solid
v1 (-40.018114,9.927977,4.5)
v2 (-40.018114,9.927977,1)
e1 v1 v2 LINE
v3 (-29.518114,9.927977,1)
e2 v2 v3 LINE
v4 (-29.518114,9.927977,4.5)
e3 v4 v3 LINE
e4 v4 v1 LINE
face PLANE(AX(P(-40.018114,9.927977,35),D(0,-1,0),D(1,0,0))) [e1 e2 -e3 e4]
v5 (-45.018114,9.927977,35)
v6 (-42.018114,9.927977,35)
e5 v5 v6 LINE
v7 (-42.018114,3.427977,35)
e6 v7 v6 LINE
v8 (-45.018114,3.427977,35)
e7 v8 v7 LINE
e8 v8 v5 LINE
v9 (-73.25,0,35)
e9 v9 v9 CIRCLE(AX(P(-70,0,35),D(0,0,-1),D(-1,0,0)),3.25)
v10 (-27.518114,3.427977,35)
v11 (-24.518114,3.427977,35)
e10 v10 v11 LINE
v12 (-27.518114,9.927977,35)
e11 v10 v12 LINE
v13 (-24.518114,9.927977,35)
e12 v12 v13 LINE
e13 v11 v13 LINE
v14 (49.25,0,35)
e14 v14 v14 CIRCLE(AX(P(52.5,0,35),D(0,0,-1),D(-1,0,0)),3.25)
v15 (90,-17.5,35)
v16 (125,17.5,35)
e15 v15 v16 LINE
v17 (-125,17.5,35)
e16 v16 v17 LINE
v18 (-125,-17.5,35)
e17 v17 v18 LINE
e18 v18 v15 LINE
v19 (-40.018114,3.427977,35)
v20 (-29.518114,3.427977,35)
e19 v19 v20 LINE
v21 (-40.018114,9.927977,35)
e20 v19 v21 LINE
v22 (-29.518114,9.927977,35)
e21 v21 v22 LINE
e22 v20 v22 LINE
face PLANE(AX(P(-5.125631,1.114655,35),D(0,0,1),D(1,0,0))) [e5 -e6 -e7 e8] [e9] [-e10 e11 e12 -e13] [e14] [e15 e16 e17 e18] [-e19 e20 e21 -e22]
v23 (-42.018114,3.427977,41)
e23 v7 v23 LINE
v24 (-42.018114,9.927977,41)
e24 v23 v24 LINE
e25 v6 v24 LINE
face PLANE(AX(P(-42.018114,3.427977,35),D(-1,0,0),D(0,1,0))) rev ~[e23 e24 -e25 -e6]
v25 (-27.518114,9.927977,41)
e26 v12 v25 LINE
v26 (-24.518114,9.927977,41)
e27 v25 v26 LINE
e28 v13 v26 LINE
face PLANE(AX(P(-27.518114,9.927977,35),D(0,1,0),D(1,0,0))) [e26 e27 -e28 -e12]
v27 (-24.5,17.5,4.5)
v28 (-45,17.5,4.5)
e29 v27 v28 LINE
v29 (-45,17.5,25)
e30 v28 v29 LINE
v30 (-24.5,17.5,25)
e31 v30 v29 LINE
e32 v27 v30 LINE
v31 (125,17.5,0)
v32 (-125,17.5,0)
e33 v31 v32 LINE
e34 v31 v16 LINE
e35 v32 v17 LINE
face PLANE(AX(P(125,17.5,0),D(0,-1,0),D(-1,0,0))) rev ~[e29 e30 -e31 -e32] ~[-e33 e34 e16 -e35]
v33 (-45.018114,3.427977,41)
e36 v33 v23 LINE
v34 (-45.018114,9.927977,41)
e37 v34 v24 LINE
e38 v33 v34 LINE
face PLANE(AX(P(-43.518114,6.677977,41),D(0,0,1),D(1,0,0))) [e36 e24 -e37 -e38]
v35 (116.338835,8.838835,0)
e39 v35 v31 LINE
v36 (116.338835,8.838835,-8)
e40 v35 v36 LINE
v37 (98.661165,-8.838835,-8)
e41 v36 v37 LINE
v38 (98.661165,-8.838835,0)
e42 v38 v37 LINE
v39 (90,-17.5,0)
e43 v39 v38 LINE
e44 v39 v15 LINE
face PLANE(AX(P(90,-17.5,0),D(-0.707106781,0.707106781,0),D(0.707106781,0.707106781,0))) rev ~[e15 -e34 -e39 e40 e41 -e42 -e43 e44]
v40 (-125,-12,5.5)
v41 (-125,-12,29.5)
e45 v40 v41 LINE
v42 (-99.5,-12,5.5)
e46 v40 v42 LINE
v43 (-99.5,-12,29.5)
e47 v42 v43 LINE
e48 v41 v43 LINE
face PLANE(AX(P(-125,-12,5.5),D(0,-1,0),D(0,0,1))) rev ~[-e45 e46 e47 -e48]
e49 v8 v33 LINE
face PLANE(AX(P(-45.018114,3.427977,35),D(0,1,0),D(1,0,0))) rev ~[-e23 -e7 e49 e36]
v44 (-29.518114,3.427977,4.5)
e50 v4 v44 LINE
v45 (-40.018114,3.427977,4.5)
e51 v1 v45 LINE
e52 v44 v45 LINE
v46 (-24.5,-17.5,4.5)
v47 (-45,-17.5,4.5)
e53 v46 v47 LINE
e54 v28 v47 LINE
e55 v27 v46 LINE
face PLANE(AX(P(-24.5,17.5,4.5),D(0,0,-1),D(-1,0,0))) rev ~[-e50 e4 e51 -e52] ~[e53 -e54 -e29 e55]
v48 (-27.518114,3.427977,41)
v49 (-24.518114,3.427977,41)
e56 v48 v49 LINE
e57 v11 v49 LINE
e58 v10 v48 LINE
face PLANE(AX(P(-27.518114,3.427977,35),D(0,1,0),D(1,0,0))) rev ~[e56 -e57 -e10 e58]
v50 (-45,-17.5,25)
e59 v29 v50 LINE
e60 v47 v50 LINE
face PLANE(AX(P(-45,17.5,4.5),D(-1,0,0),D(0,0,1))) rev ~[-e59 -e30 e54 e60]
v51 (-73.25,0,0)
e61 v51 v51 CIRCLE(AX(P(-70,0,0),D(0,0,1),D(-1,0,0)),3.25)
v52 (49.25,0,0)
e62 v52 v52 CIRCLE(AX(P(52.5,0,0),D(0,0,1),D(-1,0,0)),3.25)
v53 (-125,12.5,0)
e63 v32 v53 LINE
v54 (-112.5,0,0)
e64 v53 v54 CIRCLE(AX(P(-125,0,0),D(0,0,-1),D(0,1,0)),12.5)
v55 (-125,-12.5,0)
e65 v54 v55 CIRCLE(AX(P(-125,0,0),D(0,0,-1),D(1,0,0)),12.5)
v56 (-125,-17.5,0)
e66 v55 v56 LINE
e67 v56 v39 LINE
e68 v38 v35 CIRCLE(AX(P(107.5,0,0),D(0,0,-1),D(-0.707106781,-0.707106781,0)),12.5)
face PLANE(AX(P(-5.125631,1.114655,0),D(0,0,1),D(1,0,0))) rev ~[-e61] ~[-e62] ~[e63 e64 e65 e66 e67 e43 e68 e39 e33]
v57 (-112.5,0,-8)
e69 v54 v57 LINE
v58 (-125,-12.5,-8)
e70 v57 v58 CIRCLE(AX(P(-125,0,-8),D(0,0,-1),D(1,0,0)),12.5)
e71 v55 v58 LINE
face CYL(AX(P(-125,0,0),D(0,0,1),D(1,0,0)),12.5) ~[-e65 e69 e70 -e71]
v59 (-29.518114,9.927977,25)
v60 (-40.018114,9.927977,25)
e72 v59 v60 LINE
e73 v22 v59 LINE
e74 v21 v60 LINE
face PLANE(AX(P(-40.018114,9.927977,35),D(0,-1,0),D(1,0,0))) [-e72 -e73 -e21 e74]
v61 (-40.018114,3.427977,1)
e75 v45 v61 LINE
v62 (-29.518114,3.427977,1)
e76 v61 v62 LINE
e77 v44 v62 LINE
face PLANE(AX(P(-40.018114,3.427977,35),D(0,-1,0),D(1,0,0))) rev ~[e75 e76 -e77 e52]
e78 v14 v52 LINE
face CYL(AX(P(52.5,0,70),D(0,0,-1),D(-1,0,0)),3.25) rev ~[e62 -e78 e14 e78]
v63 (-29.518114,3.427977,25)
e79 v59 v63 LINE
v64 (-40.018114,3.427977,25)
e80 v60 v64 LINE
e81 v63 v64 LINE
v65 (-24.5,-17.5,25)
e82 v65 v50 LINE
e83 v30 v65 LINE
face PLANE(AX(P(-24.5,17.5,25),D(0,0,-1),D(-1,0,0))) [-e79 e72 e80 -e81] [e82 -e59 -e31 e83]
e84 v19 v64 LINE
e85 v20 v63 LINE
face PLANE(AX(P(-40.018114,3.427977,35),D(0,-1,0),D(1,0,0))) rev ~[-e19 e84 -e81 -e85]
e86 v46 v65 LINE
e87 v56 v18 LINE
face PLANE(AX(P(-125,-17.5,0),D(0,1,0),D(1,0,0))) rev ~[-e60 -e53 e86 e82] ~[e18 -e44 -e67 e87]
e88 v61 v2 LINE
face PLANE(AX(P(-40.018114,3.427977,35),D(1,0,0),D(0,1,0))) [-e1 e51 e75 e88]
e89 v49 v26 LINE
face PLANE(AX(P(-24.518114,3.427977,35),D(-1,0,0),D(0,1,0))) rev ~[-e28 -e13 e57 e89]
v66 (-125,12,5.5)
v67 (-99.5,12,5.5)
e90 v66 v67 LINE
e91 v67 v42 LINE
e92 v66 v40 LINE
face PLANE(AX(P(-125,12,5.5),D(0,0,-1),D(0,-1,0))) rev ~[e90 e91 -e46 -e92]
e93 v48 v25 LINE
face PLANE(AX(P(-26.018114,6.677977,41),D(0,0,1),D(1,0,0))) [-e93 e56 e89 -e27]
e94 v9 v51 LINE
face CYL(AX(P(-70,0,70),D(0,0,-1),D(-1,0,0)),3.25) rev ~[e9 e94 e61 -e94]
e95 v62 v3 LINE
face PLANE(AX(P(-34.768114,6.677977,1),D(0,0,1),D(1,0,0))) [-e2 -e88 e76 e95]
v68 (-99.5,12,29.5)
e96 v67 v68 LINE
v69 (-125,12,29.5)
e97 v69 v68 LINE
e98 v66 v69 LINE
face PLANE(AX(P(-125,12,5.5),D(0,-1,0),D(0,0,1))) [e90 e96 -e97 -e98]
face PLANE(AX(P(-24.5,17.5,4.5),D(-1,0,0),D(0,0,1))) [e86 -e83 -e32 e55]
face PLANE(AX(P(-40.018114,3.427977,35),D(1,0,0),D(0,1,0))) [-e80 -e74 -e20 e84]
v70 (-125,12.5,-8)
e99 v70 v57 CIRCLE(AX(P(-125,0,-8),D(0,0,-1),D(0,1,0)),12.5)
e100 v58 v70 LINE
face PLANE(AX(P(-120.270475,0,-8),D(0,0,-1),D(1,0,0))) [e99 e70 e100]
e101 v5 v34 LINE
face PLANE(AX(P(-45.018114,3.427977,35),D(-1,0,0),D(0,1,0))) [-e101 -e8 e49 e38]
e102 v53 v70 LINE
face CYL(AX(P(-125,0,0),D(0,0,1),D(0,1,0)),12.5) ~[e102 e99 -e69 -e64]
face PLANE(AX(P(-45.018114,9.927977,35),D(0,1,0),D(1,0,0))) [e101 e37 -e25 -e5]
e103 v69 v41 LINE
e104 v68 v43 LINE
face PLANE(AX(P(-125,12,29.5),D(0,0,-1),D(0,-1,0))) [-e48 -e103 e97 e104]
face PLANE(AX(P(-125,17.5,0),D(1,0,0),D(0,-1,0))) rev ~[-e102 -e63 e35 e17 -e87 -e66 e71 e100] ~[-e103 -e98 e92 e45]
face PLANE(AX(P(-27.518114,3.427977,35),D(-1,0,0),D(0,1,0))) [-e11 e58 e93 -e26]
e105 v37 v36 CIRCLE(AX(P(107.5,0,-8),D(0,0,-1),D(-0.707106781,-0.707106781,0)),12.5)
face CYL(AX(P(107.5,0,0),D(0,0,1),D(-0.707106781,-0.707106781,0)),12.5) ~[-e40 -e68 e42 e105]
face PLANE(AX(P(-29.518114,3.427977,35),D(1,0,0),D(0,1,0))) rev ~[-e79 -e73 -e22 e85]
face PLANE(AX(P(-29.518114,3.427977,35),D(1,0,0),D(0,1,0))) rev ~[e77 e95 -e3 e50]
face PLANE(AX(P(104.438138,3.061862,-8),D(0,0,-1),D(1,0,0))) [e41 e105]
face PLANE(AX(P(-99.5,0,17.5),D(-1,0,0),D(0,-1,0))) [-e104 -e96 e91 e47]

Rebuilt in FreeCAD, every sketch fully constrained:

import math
import FreeCAD as App
import Part
import Sketcher

V = App.Vector
Q = App.Units.Quantity

doc = App.newDocument("Part")
body = doc.addObject("PartDesign::Body", "Body")

# Sketch on XY plane
sketch1 = body.newObject("Sketcher::SketchObject", "Sketch")
sketch1.AttachmentSupport = (doc.getObject("XY_Plane"), [""])
sketch1.MapMode = "FlatFace"
sketch1.addGeometry([
    Part.LineSegment(V(90, -18, 0), V(125, 18, 0)),
    Part.LineSegment(V(125, 18, 0), V(-125, 18, 0)),
    Part.LineSegment(V(-125, 18, 0), V(-125, -18, 0)),
    Part.LineSegment(V(-125, -18, 0), V(90, -18, 0)),
], False)
sketch1.addConstraint([
    Sketcher.Constraint("Coincident", 0, 2, 1, 1),
    Sketcher.Constraint("Coincident", 1, 2, 2, 1),
    Sketcher.Constraint("Coincident", 2, 2, 3, 1),
    Sketcher.Constraint("Coincident", 3, 2, 0, 1),
    Sketcher.Constraint("Horizontal", 1),
    Sketcher.Constraint("Vertical", 2),
    Sketcher.Constraint("Horizontal", 3),
    Sketcher.Constraint("Symmetric", 0, 2, 2, 2, -1, 1),
    Sketcher.Constraint("DistanceX", 1, 2, 1, 1, 250.0),
    Sketcher.Constraint("DistanceX", 3, 1, 3, 2, 215.0),
    Sketcher.Constraint("DistanceY", 2, 2, 2, 1, 35.0),
])
pad1 = body.newObject("PartDesign::Pad", "Pad")
pad1.Profile = sketch1
pad1.Length = 35

# Sketch on XY plane
sketch2 = body.newObject("Sketcher::SketchObject", "Sketch001")
sketch2.AttachmentSupport = (doc.getObject("XY_Plane"), [""])
sketch2.MapMode = "FlatFace"
sketch2.AttachmentOffset = App.Placement(V(0, 0, 35), App.Rotation())
sketch2.addGeometry(Part.Circle(V(-70, 0, 0), V(0, 0, 1), 3.2), False)
sketch2.addConstraint([
    Sketcher.Constraint("PointOnObject", 0, 3, -1),
    Sketcher.Constraint("Diameter", 0, 6.5),
    Sketcher.Constraint("DistanceX", 0, 3, -1, 1, 70.0),
])
doc.recompute()
hole = body.newObject("PartDesign::Hole", "Hole")
hole.Profile = sketch2
hole.ThreadType = "None"
hole.Diameter = 6.5
hole.DepthType = "Dimension"
hole.Depth = 35
hole.DrillPoint = "Angled"
hole.DrillPointAngle = 118

# Sketch on XY plane
sketch3 = body.newObject("Sketcher::SketchObject", "Sketch002")
sketch3.AttachmentSupport = (doc.getObject("XY_Plane"), [""])
sketch3.MapMode = "FlatFace"
sketch3.AttachmentOffset = App.Placement(V(0, 0, 35), App.Rotation())
sketch3.addGeometry(Part.Circle(V(52.5, 0, 0), V(0, 0, 1), 3.2), False)
sketch3.addConstraint([
    Sketcher.Constraint("PointOnObject", 0, 3, -1),
    Sketcher.Constraint("Diameter", 0, 6.5),
    Sketcher.Constraint("DistanceX", -1, 1, 0, 3, 52.5),
])
doc.recompute()
hole2 = body.newObject("PartDesign::Hole", "Hole001")
hole2.Profile = sketch3
hole2.ThreadType = "None"
hole2.Diameter = 6.5
hole2.DepthType = "Dimension"
hole2.Depth = 35
hole2.DrillPoint = "Angled"
hole2.DrillPointAngle = 118

# Sketch on YZ plane
sketch4 = body.newObject("Sketcher::SketchObject", "Sketch003")
sketch4.AttachmentSupport = (doc.getObject("YZ_Plane"), [""])
sketch4.MapMode = "FlatFace"
sketch4.AttachmentOffset = App.Placement(V(0, 0, -125), App.Rotation())
sketch4.addGeometry([
    Part.LineSegment(V(12, 30, 0), V(12, 6, 0)),
    Part.LineSegment(V(12, 6, 0), V(-12, 6, 0)),
    Part.LineSegment(V(-12, 6, 0), V(-12, 30, 0)),
    Part.LineSegment(V(-12, 30, 0), V(12, 30, 0)),
], False)
sketch4.addConstraint([
    Sketcher.Constraint("Coincident", 0, 2, 1, 1),
    Sketcher.Constraint("Coincident", 1, 2, 2, 1),
    Sketcher.Constraint("Coincident", 2, 2, 3, 1),
    Sketcher.Constraint("Coincident", 3, 2, 0, 1),
    Sketcher.Constraint("Vertical", 0),
    Sketcher.Constraint("Horizontal", 1),
    Sketcher.Constraint("Vertical", 2),
    Sketcher.Constraint("Horizontal", 3),
    Sketcher.Constraint("Equal", 3, 0),
    Sketcher.Constraint("DistanceX", 1, 2, 1, 1, 24.0),
    Sketcher.Constraint("DistanceX", -1, 1, 0, 2, 12.0),
    Sketcher.Constraint("DistanceY", -1, 1, 0, 2, 5.5),
])
pocket1 = body.newObject("PartDesign::Pocket", "Pocket")
pocket1.Profile = sketch4
pocket1.Length = 25.5
pocket1.Reversed = True

# Sketch on XY plane
sketch5 = body.newObject("Sketcher::SketchObject", "Sketch004")
sketch5.AttachmentSupport = (doc.getObject("XY_Plane"), [""])
sketch5.MapMode = "FlatFace"
sketch5.addGeometry([
    Part.LineSegment(V(116, 9, 0), V(99, -9, 0)),
    Part.ArcOfCircle(Part.Circle(V(108, 0, 0), V(0, 0, 1), 12), math.radians(45), math.radians(225)),
], False)
sketch5.addConstraint([
    Sketcher.Constraint("Coincident", 0, 1, 1, 1),
    Sketcher.Constraint("Coincident", 1, 2, 0, 2),
    Sketcher.Constraint("PointOnObject", 1, 3, -1),
    Sketcher.Constraint("Radius", 1, 12.5),
    Sketcher.Constraint("Angle", 0, Q("-135 deg")),
    Sketcher.Constraint("DistanceX", -1, 1, 1, 3, 107.5),
    Sketcher.Constraint("DistanceX", -1, 1, 0, 1, 116.338835),
])
pad2 = body.newObject("PartDesign::Pad", "Pad001")
pad2.Profile = sketch5
pad2.Length = 8
pad2.Reversed = True

# Sketch on XY plane
sketch6 = body.newObject("Sketcher::SketchObject", "Sketch005")
sketch6.AttachmentSupport = (doc.getObject("XY_Plane"), [""])
sketch6.MapMode = "FlatFace"
sketch6.addGeometry([
    Part.ArcOfCircle(Part.Circle(V(-125, 0, 0), V(0, 0, 1), 12), math.radians(0), math.radians(90)),
    Part.ArcOfCircle(Part.Circle(V(-125, 0, 0), V(0, 0, 1), 12), math.radians(-90), math.radians(0)),
    Part.LineSegment(V(-125, -12, 0), V(-125, 12, 0)),
], False)
sketch6.addConstraint([
    Sketcher.Constraint("Tangent", 0, 1, 1, 2),
    Sketcher.Constraint("Coincident", 1, 1, 2, 1),
    Sketcher.Constraint("Coincident", 2, 2, 0, 2),
    Sketcher.Constraint("Vertical", 2),
    Sketcher.Constraint("Equal", 0, 1),
    Sketcher.Constraint("PointOnObject", 0, 3, -1),
    Sketcher.Constraint("PointOnObject", 0, 1, -1),
    Sketcher.Constraint("Vertical", 0, 3, 1, 1),
    Sketcher.Constraint("Radius", 0, 12.5),
    Sketcher.Constraint("DistanceX", 0, 3, -1, 1, 125.0),
])
pad3 = body.newObject("PartDesign::Pad", "Pad002")
pad3.Profile = sketch6
pad3.Length = 8
pad3.Reversed = True

# Sketch on XZ plane
sketch7 = body.newObject("Sketcher::SketchObject", "Sketch006")
sketch7.AttachmentSupport = (doc.getObject("XZ_Plane"), [""])
sketch7.MapMode = "FlatFace"
sketch7.AttachmentOffset = App.Placement(V(0, 0, -17.5), App.Rotation())
sketch7.addGeometry([
    Part.LineSegment(V(-24, 25, 0), V(-24, 4, 0)),
    Part.LineSegment(V(-24, 4, 0), V(-45, 4, 0)),
    Part.LineSegment(V(-45, 4, 0), V(-45, 25, 0)),
    Part.LineSegment(V(-45, 25, 0), V(-24, 25, 0)),
], False)
sketch7.addConstraint([
    Sketcher.Constraint("Coincident", 0, 2, 1, 1),
    Sketcher.Constraint("Coincident", 1, 2, 2, 1),
    Sketcher.Constraint("Coincident", 2, 2, 3, 1),
    Sketcher.Constraint("Coincident", 3, 2, 0, 1),
    Sketcher.Constraint("Vertical", 0),
    Sketcher.Constraint("Horizontal", 1),
    Sketcher.Constraint("Vertical", 2),
    Sketcher.Constraint("Horizontal", 3),
    Sketcher.Constraint("Equal", 3, 0),
    Sketcher.Constraint("DistanceX", 1, 2, 1, 1, 20.5),
    Sketcher.Constraint("DistanceX", 1, 2, -1, 1, 45.0),
    Sketcher.Constraint("DistanceY", -1, 1, 2, 2, 25.0),
])
pocket2 = body.newObject("PartDesign::Pocket", "Pocket001")
pocket2.Profile = sketch7
pocket2.Length = 100
pocket2.Reversed = True

# Sketch on XY plane
sketch8 = body.newObject("Sketcher::SketchObject", "Sketch007")
sketch8.AttachmentSupport = (doc.getObject("XY_Plane"), [""])
sketch8.MapMode = "FlatFace"
sketch8.AttachmentOffset = App.Placement(V(0, 0, 35), App.Rotation())
sketch8.addGeometry([
    Part.LineSegment(V(-40, 10, 0), V(-40, 3, 0)),
    Part.LineSegment(V(-40, 3, 0), V(-30, 3, 0)),
    Part.LineSegment(V(-30, 3, 0), V(-30, 10, 0)),
    Part.LineSegment(V(-30, 10, 0), V(-40, 10, 0)),
], False)
sketch8.addConstraint([
    Sketcher.Constraint("Coincident", 0, 2, 1, 1),
    Sketcher.Constraint("Coincident", 1, 2, 2, 1),
    Sketcher.Constraint("Coincident", 2, 2, 3, 1),
    Sketcher.Constraint("Coincident", 3, 2, 0, 1),
    Sketcher.Constraint("Vertical", 0),
    Sketcher.Constraint("Horizontal", 1),
    Sketcher.Constraint("Vertical", 2),
    Sketcher.Constraint("Horizontal", 3),
    Sketcher.Constraint("DistanceX", 1, 1, 1, 2, 10.5),
    Sketcher.Constraint("DistanceY", 0, 2, 0, 1, 6.5),
    Sketcher.Constraint("DistanceX", 0, 2, -1, 1, 40.018114),
    Sketcher.Constraint("DistanceY", -1, 1, 0, 2, 3.427977),
])
pocket3 = body.newObject("PartDesign::Pocket", "Pocket002")
pocket3.Profile = sketch8
pocket3.Length = 34

# Sketch on XY plane
sketch9 = body.newObject("Sketcher::SketchObject", "Sketch008")
sketch9.AttachmentSupport = (doc.getObject("XY_Plane"), [""])
sketch9.MapMode = "FlatFace"
sketch9.AttachmentOffset = App.Placement(V(0, 0, 35), App.Rotation())
sketch9.addGeometry([
    Part.LineSegment(V(-45, 9.9, 0), V(-45, 3.4, 0)),  # 0
    Part.LineSegment(V(-45, 3.4, 0), V(-42, 3.4, 0)),  # 1
    Part.LineSegment(V(-42, 3.4, 0), V(-42, 9.9, 0)),  # 2
    Part.LineSegment(V(-42, 9.9, 0), V(-45, 9.9, 0)),  # 3
    Part.LineSegment(V(-27.5, 9.9, 0), V(-27.5, 3.4, 0)),  # 4
    Part.LineSegment(V(-27.5, 3.4, 0), V(-24.5, 3.4, 0)),  # 5
    Part.LineSegment(V(-24.5, 3.4, 0), V(-24.5, 9.9, 0)),  # 6
    Part.LineSegment(V(-24.5, 9.9, 0), V(-27.5, 9.9, 0)),  # 7
], False)
sketch9.addConstraint([
    Sketcher.Constraint("Coincident", 0, 2, 1, 1),
    Sketcher.Constraint("Coincident", 1, 2, 2, 1),
    Sketcher.Constraint("Coincident", 2, 2, 3, 1),
    Sketcher.Constraint("Coincident", 3, 2, 0, 1),
    Sketcher.Constraint("Coincident", 4, 2, 5, 1),
    Sketcher.Constraint("Coincident", 5, 2, 6, 1),
    Sketcher.Constraint("Coincident", 6, 2, 7, 1),
    Sketcher.Constraint("Coincident", 7, 2, 4, 1),
    Sketcher.Constraint("Vertical", 0),
    Sketcher.Constraint("Horizontal", 1),
    Sketcher.Constraint("Vertical", 2),
    Sketcher.Constraint("Horizontal", 3),
    Sketcher.Constraint("Vertical", 4),
    Sketcher.Constraint("Horizontal", 5),
    Sketcher.Constraint("Vertical", 6),
    Sketcher.Constraint("Horizontal", 7),
    Sketcher.Constraint("Horizontal", 1, 2, 4, 2),
    Sketcher.Constraint("Horizontal", 3, 2, 6, 2),
    Sketcher.Constraint("Equal", 3, 5),
    Sketcher.Constraint("DistanceX", 1, 1, 1, 2, 3.0),
    Sketcher.Constraint("DistanceY", 0, 2, 0, 1, 6.5),
    Sketcher.Constraint("DistanceX", 1, 2, 4, 2, 14.5),
    Sketcher.Constraint("DistanceX", 0, 2, -1, 1, 45.018114),
    Sketcher.Constraint("DistanceY", -1, 1, 0, 2, 3.427977),
])
pad4 = body.newObject("PartDesign::Pad", "Pad003")
pad4.Profile = sketch9
pad4.Length = 6

doc.recompute()
